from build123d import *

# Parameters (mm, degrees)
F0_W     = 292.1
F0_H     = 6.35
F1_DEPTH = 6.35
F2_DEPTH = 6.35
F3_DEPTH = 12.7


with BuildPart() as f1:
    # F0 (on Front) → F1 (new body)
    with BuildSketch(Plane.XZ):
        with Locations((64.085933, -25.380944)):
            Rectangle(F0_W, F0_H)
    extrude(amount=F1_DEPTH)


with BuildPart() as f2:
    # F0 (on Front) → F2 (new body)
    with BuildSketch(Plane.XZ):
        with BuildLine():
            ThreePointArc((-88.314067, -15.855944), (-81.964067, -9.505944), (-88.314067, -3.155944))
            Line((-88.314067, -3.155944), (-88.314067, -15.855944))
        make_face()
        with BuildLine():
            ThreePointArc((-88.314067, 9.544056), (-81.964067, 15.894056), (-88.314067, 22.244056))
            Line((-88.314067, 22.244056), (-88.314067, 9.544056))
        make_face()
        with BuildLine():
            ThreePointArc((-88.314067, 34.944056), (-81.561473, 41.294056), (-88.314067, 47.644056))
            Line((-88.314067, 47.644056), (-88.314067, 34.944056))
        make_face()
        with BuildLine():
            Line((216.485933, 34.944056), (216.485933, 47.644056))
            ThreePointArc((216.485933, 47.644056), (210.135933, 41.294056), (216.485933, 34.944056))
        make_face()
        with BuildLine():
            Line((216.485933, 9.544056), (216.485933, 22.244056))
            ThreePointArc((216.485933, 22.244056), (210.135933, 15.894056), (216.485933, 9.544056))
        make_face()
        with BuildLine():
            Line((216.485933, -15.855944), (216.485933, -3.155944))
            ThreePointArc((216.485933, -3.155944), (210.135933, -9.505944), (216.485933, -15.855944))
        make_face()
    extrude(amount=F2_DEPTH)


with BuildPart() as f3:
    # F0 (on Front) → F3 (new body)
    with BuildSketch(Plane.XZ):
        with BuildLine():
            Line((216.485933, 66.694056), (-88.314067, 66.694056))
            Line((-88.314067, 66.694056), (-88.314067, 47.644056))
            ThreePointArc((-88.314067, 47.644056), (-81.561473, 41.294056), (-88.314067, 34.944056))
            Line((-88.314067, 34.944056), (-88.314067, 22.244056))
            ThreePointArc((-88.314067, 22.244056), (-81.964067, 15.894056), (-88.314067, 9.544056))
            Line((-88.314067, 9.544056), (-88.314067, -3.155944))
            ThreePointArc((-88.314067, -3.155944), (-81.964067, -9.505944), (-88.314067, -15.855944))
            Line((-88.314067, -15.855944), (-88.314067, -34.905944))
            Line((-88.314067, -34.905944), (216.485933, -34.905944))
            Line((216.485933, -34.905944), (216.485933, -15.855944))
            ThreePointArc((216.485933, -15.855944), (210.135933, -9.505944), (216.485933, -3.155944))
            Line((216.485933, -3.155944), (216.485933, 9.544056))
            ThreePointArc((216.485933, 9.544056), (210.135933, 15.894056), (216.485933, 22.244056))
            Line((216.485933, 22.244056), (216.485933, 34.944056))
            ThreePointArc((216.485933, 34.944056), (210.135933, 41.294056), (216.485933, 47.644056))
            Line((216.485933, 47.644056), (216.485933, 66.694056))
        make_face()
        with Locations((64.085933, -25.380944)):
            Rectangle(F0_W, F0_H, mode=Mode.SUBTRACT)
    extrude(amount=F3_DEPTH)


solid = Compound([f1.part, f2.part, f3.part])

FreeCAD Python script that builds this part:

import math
import FreeCAD as App
import Part
import Sketcher
Q = App.Units.Quantity


def add_polygon(sketch, points):
    """Adds a closed chain of lines whose ends are joined by coincident constraints."""
    first, n = sketch.GeometryCount, len(points)
    for a, b in zip(points, points[1:] + points[:1]):
        sketch.addGeometry(Part.LineSegment(App.Vector(*a, 0), App.Vector(*b, 0)), False)
    for i in range(n):
        sketch.addConstraint(Sketcher.Constraint("Coincident", first + i, 2, first + (i + 1) % n, 1))

doc = App.newDocument("Part")
params = doc.addObject("Spreadsheet::Sheet", "Params")
for row, (alias, value) in enumerate([
    ("sketch1_width", "11.5 in"),
    ("sketch1_height", "0.25 in"),
    ("pad1_length", "0.25 in"),
    ("sketch2_radius", "0.25 in"),
    ("pad2_length", "0.25 in"),
    ("sketch3_width", "12 in"),
    ("sketch3_radius", "0.25 in"),
    ("sketch3_width2", "11.5 in"),
    ("sketch3_height", "0.5 in"),
    ("sketch3_height2", "0.25 in"),
    ("pad3_length", "0.5 in"),
], start=1):
    params.set(f"A{row}", alias)
    params.set(f"B{row}", "=" + value)
    params.setAlias(f"B{row}", alias)

body = doc.addObject("PartDesign::Body", "Body")

sketch1 = body.newObject("Sketcher::SketchObject", "Sketch")
sketch1.AttachmentSupport = (doc.getObject("XZ_Plane"), [""])
sketch1.MapMode = "FlatFace"
add_polygon(sketch1, [(-81.964067, -22.205944), (-81.964067, -28.555944), (210.135933, -28.555944), (210.135933, -22.205944)])
sketch1.addConstraint(Sketcher.Constraint("Vertical", 0))
sketch1.addConstraint(Sketcher.Constraint("Horizontal", 1))
sketch1.addConstraint(Sketcher.Constraint("Vertical", 2))
sketch1.addConstraint(Sketcher.Constraint("Horizontal", 3))
sketch1.addConstraint(Sketcher.Constraint("DistanceX", 1, 1, 1, 2, Q("11.5 in")))
sketch1.addConstraint(Sketcher.Constraint("DistanceY", 0, 2, 0, 1, Q("0.25 in")))
sketch1.addConstraint(Sketcher.Constraint("DistanceX", 0, 2, -1, 1, Q("81.964067 mm")))
sketch1.addConstraint(Sketcher.Constraint("DistanceY", 0, 2, -1, 1, Q("28.555944 mm")))
sketch1.setExpression("Constraints[8]", "Params.sketch1_width")
sketch1.setExpression("Constraints[9]", "Params.sketch1_height")
pad1 = body.newObject("PartDesign::Pad", "Pad")
pad1.Profile = sketch1
pad1.setExpression("Length", "Params.pad1_length")
body2 = doc.addObject("PartDesign::Body", "Body001")
body2.AllowCompound = True

sketch2 = body2.newObject("Sketcher::SketchObject", "Sketch001")
sketch2.AttachmentSupport = (doc.getObject("XZ_Plane001"), [""])
sketch2.MapMode = "FlatFace"
sketch2.addGeometry(Part.ArcOfCircle(Part.Circle(App.Vector(-88.314067, -9.505944, 0), App.Vector(0, 0, 1), 6.35), math.radians(-90), math.radians(90)), False)
sketch2.addGeometry(Part.LineSegment(App.Vector(-88.314067, -3.155944, 0), App.Vector(-88.314067, -15.855944, 0)), False)
sketch2.addGeometry(Part.ArcOfCircle(Part.Circle(App.Vector(-88.314067, 15.894056, 0), App.Vector(0, 0, 1), 6.35), math.radians(-90), math.radians(90)), False)
sketch2.addGeometry(Part.LineSegment(App.Vector(-88.314067, 22.244056, 0), App.Vector(-88.314067, 9.544056, 0)), False)
sketch2.addGeometry(Part.ArcOfCircle(Part.Circle(App.Vector(-87.923474, 41.294056, 0), App.Vector(0, 0, 1), 6.362001), math.radians(-93.519865), math.radians(93.519865)), False)
sketch2.addGeometry(Part.LineSegment(App.Vector(-88.314067, 47.644056, 0), App.Vector(-88.314067, 34.944056, 0)), False)
sketch2.addGeometry(Part.LineSegment(App.Vector(216.485933, 34.944056, 0), App.Vector(216.485933, 47.644056, 0)), False)
sketch2.addGeometry(Part.ArcOfCircle(Part.Circle(App.Vector(216.485933, 41.294056, 0), App.Vector(0, 0, 1), 6.35), math.radians(90), math.radians(270)), False)
sketch2.addGeometry(Part.LineSegment(App.Vector(216.485933, 9.544056, 0), App.Vector(216.485933, 22.244056, 0)), False)
sketch2.addGeometry(Part.ArcOfCircle(Part.Circle(App.Vector(216.485933, 15.894056, 0), App.Vector(0, 0, 1), 6.35), math.radians(90), math.radians(270)), False)
sketch2.addGeometry(Part.LineSegment(App.Vector(216.485933, -15.855944, 0), App.Vector(216.485933, -3.155944, 0)), False)
sketch2.addGeometry(Part.ArcOfCircle(Part.Circle(App.Vector(216.485933, -9.505944, 0), App.Vector(0, 0, 1), 6.35), math.radians(90), math.radians(270)), False)
sketch2.addConstraint(Sketcher.Constraint("Coincident", 0, 1, 1, 2))
sketch2.addConstraint(Sketcher.Constraint("Coincident", 1, 1, 0, 2))
sketch2.addConstraint(Sketcher.Constraint("Coincident", 2, 1, 3, 2))
sketch2.addConstraint(Sketcher.Constraint("Coincident", 3, 1, 2, 2))
sketch2.addConstraint(Sketcher.Constraint("Coincident", 4, 1, 5, 2))
sketch2.addConstraint(Sketcher.Constraint("Coincident", 5, 1, 4, 2))
sketch2.addConstraint(Sketcher.Constraint("Coincident", 6, 1, 7, 2))
sketch2.addConstraint(Sketcher.Constraint("Coincident", 7, 1, 6, 2))
sketch2.addConstraint(Sketcher.Constraint("Coincident", 8, 1, 9, 2))
sketch2.addConstraint(Sketcher.Constraint("Coincident", 9, 1, 8, 2))
sketch2.addConstraint(Sketcher.Constraint("Coincident", 10, 1, 11, 2))
sketch2.addConstraint(Sketcher.Constraint("Coincident", 11, 1, 10, 2))
sketch2.addConstraint(Sketcher.Constraint("Vertical", 1))
sketch2.addConstraint(Sketcher.Constraint("Vertical", 3))
sketch2.addConstraint(Sketcher.Constraint("Vertical", 5))
sketch2.addConstraint(Sketcher.Constraint("Vertical", 6))
sketch2.addConstraint(Sketcher.Constraint("Vertical", 8))
sketch2.addConstraint(Sketcher.Constraint("Vertical", 10))
sketch2.addConstraint(Sketcher.Constraint("Equal", 0, 2))
sketch2.addConstraint(Sketcher.Constraint("Equal", 2, 7))
sketch2.addConstraint(Sketcher.Constraint("Equal", 7, 9))
sketch2.addConstraint(Sketcher.Constraint("Equal", 9, 11))
sketch2.addConstraint(Sketcher.Constraint("Horizontal", 4, 3, 7, 3))
sketch2.addConstraint(Sketcher.Constraint("Horizontal", 2, 3, 9, 3))
sketch2.addConstraint(Sketcher.Constraint("Horizontal", 0, 3, 11, 3))
sketch2.addConstraint(Sketcher.Constraint("Horizontal", 4, 1, 6, 1))
sketch2.addConstraint(Sketcher.Constraint("Vertical", 0, 3, 2, 3))
sketch2.addConstraint(Sketcher.Constraint("Vertical", 7, 3, 9, 3))
sketch2.addConstraint(Sketcher.Constraint("Vertical", 9, 3, 11, 3))
sketch2.addConstraint(Sketcher.Constraint("Vertical", 2, 3, 0, 1))
sketch2.addConstraint(Sketcher.Constraint("Vertical", 1, 1, 2, 1))
sketch2.addConstraint(Sketcher.Constraint("Vertical", 3, 1, 4, 1))
sketch2.addConstraint(Sketcher.Constraint("Vertical", 11, 3, 6, 1))
sketch2.addConstraint(Sketcher.Constraint("Vertical", 7, 1, 8, 1))
sketch2.addConstraint(Sketcher.Constraint("Vertical", 9, 1, 10, 1))
sketch2.addConstraint(Sketcher.Constraint("Radius", 0, Q("0.25 in")))
sketch2.addConstraint(Sketcher.Constraint("DistanceY", 0, 3, 2, 3, Q("1 in")))
sketch2.addConstraint(Sketcher.Constraint("DistanceY", 2, 3, 4, 3, Q("1 in")))
sketch2.addConstraint(Sketcher.Constraint("DistanceX", 2, 3, 7, 3, Q("12 in")))
sketch2.addConstraint(Sketcher.Constraint("Radius", 4, Q("6.362001 mm")))
sketch2.addConstraint(Sketcher.Constraint("DistanceX", 0, 3, -1, 1, Q("88.314067 mm")))
sketch2.addConstraint(Sketcher.Constraint("DistanceY", 0, 3, -1, 1, Q("9.505944 mm")))
sketch2.setExpression("Constraints[35]", "Params.sketch2_radius")
pad2 = body2.newObject("PartDesign::Pad", "Pad001")
pad2.Profile = sketch2
pad2.setExpression("Length", "Params.pad2_length")
body3 = doc.addObject("PartDesign::Body", "Body002")

sketch3 = body3.newObject("Sketcher::SketchObject", "Sketch002")
sketch3.AttachmentSupport = (doc.getObject("XZ_Plane002"), [""])
sketch3.MapMode = "FlatFace"
sketch3.addGeometry(Part.LineSegment(App.Vector(216.485933, 66.694056, 0), App.Vector(-88.314067, 66.694056, 0)), False)
sketch3.addGeometry(Part.LineSegment(App.Vector(-88.314067, 66.694056, 0), App.Vector(-88.314067, 47.644056, 0)), False)
sketch3.addGeometry(Part.ArcOfCircle(Part.Circle(App.Vector(-87.923474, 41.294056, 0), App.Vector(0, 0, 1), 6.362001), math.radians(-93.519865), math.radians(93.519865)), False)
sketch3.addGeometry(Part.LineSegment(App.Vector(-88.314067, 34.944056, 0), App.Vector(-88.314067, 22.244056, 0)), False)
sketch3.addGeometry(Part.ArcOfCircle(Part.Circle(App.Vector(-88.314067, 15.894056, 0), App.Vector(0, 0, 1), 6.35), math.radians(-90), math.radians(90)), False)
sketch3.addGeometry(Part.LineSegment(App.Vector(-88.314067, 9.544056, 0), App.Vector(-88.314067, -3.155944, 0)), False)
sketch3.addGeometry(Part.ArcOfCircle(Part.Circle(App.Vector(-88.314067, -9.505944, 0), App.Vector(0, 0, 1), 6.35), math.radians(-90), math.radians(90)), False)
sketch3.addGeometry(Part.LineSegment(App.Vector(-88.314067, -15.855944, 0), App.Vector(-88.314067, -34.905944, 0)), False)
sketch3.addGeometry(Part.LineSegment(App.Vector(-88.314067, -34.905944, 0), App.Vector(216.485933, -34.905944, 0)), False)
sketch3.addGeometry(Part.LineSegment(App.Vector(216.485933, -34.905944, 0), App.Vector(216.485933, -15.855944, 0)), False)
sketch3.addGeometry(Part.ArcOfCircle(Part.Circle(App.Vector(216.485933, -9.505944, 0), App.Vector(0, 0, 1), 6.35), math.radians(90), math.radians(270)), False)
sketch3.addGeometry(Part.LineSegment(App.Vector(216.485933, -3.155944, 0), App.Vector(216.485933, 9.544056, 0)), False)
sketch3.addGeometry(Part.ArcOfCircle(Part.Circle(App.Vector(216.485933, 15.894056, 0), App.Vector(0, 0, 1), 6.35), math.radians(90), math.radians(270)), False)
sketch3.addGeometry(Part.LineSegment(App.Vector(216.485933, 22.244056, 0), App.Vector(216.485933, 34.944056, 0)), False)
sketch3.addGeometry(Part.ArcOfCircle(Part.Circle(App.Vector(216.485933, 41.294056, 0), App.Vector(0, 0, 1), 6.35), math.radians(90), math.radians(270)), False)
sketch3.addGeometry(Part.LineSegment(App.Vector(216.485933, 47.644056, 0), App.Vector(216.485933, 66.694056, 0)), False)
add_polygon(sketch3, [(210.135933, -28.555944), (-81.964067, -28.555944), (-81.964067, -22.205944), (210.135933, -22.205944)])
sketch3.addConstraint(Sketcher.Constraint("Coincident", 0, 2, 1, 1))
sketch3.addConstraint(Sketcher.Constraint("Coincident", 1, 2, 2, 2))
sketch3.addConstraint(Sketcher.Constraint("Coincident", 2, 1, 3, 1))
sketch3.addConstraint(Sketcher.Constraint("Coincident", 3, 2, 4, 2))
sketch3.addConstraint(Sketcher.Constraint("Coincident", 4, 1, 5, 1))
sketch3.addConstraint(Sketcher.Constraint("Coincident", 5, 2, 6, 2))
sketch3.addConstraint(Sketcher.Constraint("Coincident", 6, 1, 7, 1))
sketch3.addConstraint(Sketcher.Constraint("Coincident", 7, 2, 8, 1))
sketch3.addConstraint(Sketcher.Constraint("Coincident", 8, 2, 9, 1))
sketch3.addConstraint(Sketcher.Constraint("Coincident", 9, 2, 10, 2))
sketch3.addConstraint(Sketcher.Constraint("Coincident", 10, 1, 11, 1))
sketch3.addConstraint(Sketcher.Constraint("Coincident", 11, 2, 12, 2))
sketch3.addConstraint(Sketcher.Constraint("Coincident", 12, 1, 13, 1))
sketch3.addConstraint(Sketcher.Constraint("Coincident", 13, 2, 14, 2))
sketch3.addConstraint(Sketcher.Constraint("Coincident", 14, 1, 15, 1))
sketch3.addConstraint(Sketcher.Constraint("Coincident", 15, 2, 0, 1))
sketch3.addConstraint(Sketcher.Constraint("Horizontal", 0))
sketch3.addConstraint(Sketcher.Constraint("Vertical", 1))
sketch3.addConstraint(Sketcher.Constraint("Vertical", 3))
sketch3.addConstraint(Sketcher.Constraint("Vertical", 5))
sketch3.addConstraint(Sketcher.Constraint("Vertical", 7))
sketch3.addConstraint(Sketcher.Constraint("Horizontal", 8))
sketch3.addConstraint(Sketcher.Constraint("Vertical", 9))
sketch3.addConstraint(Sketcher.Constraint("Vertical", 11))
sketch3.addConstraint(Sketcher.Constraint("Vertical", 13))
sketch3.addConstraint(Sketcher.Constraint("Vertical", 15))
sketch3.addConstraint(Sketcher.Constraint("Horizontal", 16))
sketch3.addConstraint(Sketcher.Constraint("Vertical", 17))
sketch3.addConstraint(Sketcher.Constraint("Horizontal", 18))
sketch3.addConstraint(Sketcher.Constraint("Vertical", 19))
sketch3.addConstraint(Sketcher.Constraint("Equal", 4, 6))
sketch3.addConstraint(Sketcher.Constraint("Equal", 6, 10))
sketch3.addConstraint(Sketcher.Constraint("Equal", 10, 12))
sketch3.addConstraint(Sketcher.Constraint("Equal", 12, 14))
sketch3.addConstraint(Sketcher.Constraint("Horizontal", 6, 3, 10, 3))
sketch3.addConstraint(Sketcher.Constraint("Horizontal", 4, 3, 12, 3))
sketch3.addConstraint(Sketcher.Constraint("Horizontal", 2, 3, 14, 3))
sketch3.addConstraint(Sketcher.Constraint("Horizontal", 2, 1, 13, 2))
sketch3.addConstraint(Sketcher.Constraint("Horizontal", 1, 2, 14, 1))
sketch3.addConstraint(Sketcher.Constraint("Vertical", 4, 3, 6, 3))
sketch3.addConstraint(Sketcher.Constraint("Vertical", 10, 3, 12, 3))
sketch3.addConstraint(Sketcher.Constraint("Vertical", 12, 3, 14, 3))
sketch3.addConstraint(Sketcher.Constraint("Vertical", 6, 3, 0, 2))
sketch3.addConstraint(Sketcher.Constraint("Vertical", 3, 2, 4, 1))
sketch3.addConstraint(Sketcher.Constraint("Vertical", 5, 2, 6, 1))
sketch3.addConstraint(Sketcher.Constraint("Vertical", 14, 3, 8, 2))
sketch3.addConstraint(Sketcher.Constraint("Vertical", 9, 2, 10, 1))
sketch3.addConstraint(Sketcher.Constraint("Vertical", 11, 2, 12, 1))
sketch3.addConstraint(Sketcher.Constraint("Vertical", 13, 2, 14, 1))
sketch3.addConstraint(Sketcher.Constraint("Equal", 3, 5))
sketch3.addConstraint(Sketcher.Constraint("Equal", 1, 7))
sketch3.addConstraint(Sketcher.Constraint("DistanceX", 0, 2, 0, 1, Q("12 in")))
sketch3.addConstraint(Sketcher.Constraint("Radius", 4, Q("0.25 in")))
sketch3.addConstraint(Sketcher.Constraint("DistanceX", 16, 2, 16, 1, Q("11.5 in")))
sketch3.addConstraint(Sketcher.Constraint("DistanceY", 3, 2, 3, 1, Q("0.5 in")))
sketch3.addConstraint(Sketcher.Constraint("DistanceY", 2, 3, 0, 2, Q("1 in")))
sketch3.addConstraint(Sketcher.Constraint("DistanceY", 16, 2, 5, 2, Q("1 in")))
sketch3.addConstraint(Sketcher.Constraint("DistanceY", 17, 1, 17, 2, Q("0.25 in")))
sketch3.addConstraint(Sketcher.Constraint("Radius", 2, Q("6.362001 mm")))
sketch3.addConstraint(Sketcher.Constraint("DistanceX", 7, 2, 16, 2, Q("0.25 in")))
sketch3.addConstraint(Sketcher.Constraint("DistanceX", 2, 3, -1, 1, Q("87.923474 mm")))
sketch3.addConstraint(Sketcher.Constraint("DistanceY", -1, 1, 2, 3, Q("41.294056 mm")))
sketch3.setExpression("Constraints[55]", "Params.sketch3_width")
sketch3.setExpression("Constraints[56]", "Params.sketch3_radius")
sketch3.setExpression("Constraints[57]", "Params.sketch3_width2")
sketch3.setExpression("Constraints[58]", "Params.sketch3_height")
sketch3.setExpression("Constraints[61]", "Params.sketch3_height2")
pad3 = body3.newObject("PartDesign::Pad", "Pad002")
pad3.Profile = sketch3
pad3.setExpression("Length", "Params.pad3_length")

doc.recompute()
